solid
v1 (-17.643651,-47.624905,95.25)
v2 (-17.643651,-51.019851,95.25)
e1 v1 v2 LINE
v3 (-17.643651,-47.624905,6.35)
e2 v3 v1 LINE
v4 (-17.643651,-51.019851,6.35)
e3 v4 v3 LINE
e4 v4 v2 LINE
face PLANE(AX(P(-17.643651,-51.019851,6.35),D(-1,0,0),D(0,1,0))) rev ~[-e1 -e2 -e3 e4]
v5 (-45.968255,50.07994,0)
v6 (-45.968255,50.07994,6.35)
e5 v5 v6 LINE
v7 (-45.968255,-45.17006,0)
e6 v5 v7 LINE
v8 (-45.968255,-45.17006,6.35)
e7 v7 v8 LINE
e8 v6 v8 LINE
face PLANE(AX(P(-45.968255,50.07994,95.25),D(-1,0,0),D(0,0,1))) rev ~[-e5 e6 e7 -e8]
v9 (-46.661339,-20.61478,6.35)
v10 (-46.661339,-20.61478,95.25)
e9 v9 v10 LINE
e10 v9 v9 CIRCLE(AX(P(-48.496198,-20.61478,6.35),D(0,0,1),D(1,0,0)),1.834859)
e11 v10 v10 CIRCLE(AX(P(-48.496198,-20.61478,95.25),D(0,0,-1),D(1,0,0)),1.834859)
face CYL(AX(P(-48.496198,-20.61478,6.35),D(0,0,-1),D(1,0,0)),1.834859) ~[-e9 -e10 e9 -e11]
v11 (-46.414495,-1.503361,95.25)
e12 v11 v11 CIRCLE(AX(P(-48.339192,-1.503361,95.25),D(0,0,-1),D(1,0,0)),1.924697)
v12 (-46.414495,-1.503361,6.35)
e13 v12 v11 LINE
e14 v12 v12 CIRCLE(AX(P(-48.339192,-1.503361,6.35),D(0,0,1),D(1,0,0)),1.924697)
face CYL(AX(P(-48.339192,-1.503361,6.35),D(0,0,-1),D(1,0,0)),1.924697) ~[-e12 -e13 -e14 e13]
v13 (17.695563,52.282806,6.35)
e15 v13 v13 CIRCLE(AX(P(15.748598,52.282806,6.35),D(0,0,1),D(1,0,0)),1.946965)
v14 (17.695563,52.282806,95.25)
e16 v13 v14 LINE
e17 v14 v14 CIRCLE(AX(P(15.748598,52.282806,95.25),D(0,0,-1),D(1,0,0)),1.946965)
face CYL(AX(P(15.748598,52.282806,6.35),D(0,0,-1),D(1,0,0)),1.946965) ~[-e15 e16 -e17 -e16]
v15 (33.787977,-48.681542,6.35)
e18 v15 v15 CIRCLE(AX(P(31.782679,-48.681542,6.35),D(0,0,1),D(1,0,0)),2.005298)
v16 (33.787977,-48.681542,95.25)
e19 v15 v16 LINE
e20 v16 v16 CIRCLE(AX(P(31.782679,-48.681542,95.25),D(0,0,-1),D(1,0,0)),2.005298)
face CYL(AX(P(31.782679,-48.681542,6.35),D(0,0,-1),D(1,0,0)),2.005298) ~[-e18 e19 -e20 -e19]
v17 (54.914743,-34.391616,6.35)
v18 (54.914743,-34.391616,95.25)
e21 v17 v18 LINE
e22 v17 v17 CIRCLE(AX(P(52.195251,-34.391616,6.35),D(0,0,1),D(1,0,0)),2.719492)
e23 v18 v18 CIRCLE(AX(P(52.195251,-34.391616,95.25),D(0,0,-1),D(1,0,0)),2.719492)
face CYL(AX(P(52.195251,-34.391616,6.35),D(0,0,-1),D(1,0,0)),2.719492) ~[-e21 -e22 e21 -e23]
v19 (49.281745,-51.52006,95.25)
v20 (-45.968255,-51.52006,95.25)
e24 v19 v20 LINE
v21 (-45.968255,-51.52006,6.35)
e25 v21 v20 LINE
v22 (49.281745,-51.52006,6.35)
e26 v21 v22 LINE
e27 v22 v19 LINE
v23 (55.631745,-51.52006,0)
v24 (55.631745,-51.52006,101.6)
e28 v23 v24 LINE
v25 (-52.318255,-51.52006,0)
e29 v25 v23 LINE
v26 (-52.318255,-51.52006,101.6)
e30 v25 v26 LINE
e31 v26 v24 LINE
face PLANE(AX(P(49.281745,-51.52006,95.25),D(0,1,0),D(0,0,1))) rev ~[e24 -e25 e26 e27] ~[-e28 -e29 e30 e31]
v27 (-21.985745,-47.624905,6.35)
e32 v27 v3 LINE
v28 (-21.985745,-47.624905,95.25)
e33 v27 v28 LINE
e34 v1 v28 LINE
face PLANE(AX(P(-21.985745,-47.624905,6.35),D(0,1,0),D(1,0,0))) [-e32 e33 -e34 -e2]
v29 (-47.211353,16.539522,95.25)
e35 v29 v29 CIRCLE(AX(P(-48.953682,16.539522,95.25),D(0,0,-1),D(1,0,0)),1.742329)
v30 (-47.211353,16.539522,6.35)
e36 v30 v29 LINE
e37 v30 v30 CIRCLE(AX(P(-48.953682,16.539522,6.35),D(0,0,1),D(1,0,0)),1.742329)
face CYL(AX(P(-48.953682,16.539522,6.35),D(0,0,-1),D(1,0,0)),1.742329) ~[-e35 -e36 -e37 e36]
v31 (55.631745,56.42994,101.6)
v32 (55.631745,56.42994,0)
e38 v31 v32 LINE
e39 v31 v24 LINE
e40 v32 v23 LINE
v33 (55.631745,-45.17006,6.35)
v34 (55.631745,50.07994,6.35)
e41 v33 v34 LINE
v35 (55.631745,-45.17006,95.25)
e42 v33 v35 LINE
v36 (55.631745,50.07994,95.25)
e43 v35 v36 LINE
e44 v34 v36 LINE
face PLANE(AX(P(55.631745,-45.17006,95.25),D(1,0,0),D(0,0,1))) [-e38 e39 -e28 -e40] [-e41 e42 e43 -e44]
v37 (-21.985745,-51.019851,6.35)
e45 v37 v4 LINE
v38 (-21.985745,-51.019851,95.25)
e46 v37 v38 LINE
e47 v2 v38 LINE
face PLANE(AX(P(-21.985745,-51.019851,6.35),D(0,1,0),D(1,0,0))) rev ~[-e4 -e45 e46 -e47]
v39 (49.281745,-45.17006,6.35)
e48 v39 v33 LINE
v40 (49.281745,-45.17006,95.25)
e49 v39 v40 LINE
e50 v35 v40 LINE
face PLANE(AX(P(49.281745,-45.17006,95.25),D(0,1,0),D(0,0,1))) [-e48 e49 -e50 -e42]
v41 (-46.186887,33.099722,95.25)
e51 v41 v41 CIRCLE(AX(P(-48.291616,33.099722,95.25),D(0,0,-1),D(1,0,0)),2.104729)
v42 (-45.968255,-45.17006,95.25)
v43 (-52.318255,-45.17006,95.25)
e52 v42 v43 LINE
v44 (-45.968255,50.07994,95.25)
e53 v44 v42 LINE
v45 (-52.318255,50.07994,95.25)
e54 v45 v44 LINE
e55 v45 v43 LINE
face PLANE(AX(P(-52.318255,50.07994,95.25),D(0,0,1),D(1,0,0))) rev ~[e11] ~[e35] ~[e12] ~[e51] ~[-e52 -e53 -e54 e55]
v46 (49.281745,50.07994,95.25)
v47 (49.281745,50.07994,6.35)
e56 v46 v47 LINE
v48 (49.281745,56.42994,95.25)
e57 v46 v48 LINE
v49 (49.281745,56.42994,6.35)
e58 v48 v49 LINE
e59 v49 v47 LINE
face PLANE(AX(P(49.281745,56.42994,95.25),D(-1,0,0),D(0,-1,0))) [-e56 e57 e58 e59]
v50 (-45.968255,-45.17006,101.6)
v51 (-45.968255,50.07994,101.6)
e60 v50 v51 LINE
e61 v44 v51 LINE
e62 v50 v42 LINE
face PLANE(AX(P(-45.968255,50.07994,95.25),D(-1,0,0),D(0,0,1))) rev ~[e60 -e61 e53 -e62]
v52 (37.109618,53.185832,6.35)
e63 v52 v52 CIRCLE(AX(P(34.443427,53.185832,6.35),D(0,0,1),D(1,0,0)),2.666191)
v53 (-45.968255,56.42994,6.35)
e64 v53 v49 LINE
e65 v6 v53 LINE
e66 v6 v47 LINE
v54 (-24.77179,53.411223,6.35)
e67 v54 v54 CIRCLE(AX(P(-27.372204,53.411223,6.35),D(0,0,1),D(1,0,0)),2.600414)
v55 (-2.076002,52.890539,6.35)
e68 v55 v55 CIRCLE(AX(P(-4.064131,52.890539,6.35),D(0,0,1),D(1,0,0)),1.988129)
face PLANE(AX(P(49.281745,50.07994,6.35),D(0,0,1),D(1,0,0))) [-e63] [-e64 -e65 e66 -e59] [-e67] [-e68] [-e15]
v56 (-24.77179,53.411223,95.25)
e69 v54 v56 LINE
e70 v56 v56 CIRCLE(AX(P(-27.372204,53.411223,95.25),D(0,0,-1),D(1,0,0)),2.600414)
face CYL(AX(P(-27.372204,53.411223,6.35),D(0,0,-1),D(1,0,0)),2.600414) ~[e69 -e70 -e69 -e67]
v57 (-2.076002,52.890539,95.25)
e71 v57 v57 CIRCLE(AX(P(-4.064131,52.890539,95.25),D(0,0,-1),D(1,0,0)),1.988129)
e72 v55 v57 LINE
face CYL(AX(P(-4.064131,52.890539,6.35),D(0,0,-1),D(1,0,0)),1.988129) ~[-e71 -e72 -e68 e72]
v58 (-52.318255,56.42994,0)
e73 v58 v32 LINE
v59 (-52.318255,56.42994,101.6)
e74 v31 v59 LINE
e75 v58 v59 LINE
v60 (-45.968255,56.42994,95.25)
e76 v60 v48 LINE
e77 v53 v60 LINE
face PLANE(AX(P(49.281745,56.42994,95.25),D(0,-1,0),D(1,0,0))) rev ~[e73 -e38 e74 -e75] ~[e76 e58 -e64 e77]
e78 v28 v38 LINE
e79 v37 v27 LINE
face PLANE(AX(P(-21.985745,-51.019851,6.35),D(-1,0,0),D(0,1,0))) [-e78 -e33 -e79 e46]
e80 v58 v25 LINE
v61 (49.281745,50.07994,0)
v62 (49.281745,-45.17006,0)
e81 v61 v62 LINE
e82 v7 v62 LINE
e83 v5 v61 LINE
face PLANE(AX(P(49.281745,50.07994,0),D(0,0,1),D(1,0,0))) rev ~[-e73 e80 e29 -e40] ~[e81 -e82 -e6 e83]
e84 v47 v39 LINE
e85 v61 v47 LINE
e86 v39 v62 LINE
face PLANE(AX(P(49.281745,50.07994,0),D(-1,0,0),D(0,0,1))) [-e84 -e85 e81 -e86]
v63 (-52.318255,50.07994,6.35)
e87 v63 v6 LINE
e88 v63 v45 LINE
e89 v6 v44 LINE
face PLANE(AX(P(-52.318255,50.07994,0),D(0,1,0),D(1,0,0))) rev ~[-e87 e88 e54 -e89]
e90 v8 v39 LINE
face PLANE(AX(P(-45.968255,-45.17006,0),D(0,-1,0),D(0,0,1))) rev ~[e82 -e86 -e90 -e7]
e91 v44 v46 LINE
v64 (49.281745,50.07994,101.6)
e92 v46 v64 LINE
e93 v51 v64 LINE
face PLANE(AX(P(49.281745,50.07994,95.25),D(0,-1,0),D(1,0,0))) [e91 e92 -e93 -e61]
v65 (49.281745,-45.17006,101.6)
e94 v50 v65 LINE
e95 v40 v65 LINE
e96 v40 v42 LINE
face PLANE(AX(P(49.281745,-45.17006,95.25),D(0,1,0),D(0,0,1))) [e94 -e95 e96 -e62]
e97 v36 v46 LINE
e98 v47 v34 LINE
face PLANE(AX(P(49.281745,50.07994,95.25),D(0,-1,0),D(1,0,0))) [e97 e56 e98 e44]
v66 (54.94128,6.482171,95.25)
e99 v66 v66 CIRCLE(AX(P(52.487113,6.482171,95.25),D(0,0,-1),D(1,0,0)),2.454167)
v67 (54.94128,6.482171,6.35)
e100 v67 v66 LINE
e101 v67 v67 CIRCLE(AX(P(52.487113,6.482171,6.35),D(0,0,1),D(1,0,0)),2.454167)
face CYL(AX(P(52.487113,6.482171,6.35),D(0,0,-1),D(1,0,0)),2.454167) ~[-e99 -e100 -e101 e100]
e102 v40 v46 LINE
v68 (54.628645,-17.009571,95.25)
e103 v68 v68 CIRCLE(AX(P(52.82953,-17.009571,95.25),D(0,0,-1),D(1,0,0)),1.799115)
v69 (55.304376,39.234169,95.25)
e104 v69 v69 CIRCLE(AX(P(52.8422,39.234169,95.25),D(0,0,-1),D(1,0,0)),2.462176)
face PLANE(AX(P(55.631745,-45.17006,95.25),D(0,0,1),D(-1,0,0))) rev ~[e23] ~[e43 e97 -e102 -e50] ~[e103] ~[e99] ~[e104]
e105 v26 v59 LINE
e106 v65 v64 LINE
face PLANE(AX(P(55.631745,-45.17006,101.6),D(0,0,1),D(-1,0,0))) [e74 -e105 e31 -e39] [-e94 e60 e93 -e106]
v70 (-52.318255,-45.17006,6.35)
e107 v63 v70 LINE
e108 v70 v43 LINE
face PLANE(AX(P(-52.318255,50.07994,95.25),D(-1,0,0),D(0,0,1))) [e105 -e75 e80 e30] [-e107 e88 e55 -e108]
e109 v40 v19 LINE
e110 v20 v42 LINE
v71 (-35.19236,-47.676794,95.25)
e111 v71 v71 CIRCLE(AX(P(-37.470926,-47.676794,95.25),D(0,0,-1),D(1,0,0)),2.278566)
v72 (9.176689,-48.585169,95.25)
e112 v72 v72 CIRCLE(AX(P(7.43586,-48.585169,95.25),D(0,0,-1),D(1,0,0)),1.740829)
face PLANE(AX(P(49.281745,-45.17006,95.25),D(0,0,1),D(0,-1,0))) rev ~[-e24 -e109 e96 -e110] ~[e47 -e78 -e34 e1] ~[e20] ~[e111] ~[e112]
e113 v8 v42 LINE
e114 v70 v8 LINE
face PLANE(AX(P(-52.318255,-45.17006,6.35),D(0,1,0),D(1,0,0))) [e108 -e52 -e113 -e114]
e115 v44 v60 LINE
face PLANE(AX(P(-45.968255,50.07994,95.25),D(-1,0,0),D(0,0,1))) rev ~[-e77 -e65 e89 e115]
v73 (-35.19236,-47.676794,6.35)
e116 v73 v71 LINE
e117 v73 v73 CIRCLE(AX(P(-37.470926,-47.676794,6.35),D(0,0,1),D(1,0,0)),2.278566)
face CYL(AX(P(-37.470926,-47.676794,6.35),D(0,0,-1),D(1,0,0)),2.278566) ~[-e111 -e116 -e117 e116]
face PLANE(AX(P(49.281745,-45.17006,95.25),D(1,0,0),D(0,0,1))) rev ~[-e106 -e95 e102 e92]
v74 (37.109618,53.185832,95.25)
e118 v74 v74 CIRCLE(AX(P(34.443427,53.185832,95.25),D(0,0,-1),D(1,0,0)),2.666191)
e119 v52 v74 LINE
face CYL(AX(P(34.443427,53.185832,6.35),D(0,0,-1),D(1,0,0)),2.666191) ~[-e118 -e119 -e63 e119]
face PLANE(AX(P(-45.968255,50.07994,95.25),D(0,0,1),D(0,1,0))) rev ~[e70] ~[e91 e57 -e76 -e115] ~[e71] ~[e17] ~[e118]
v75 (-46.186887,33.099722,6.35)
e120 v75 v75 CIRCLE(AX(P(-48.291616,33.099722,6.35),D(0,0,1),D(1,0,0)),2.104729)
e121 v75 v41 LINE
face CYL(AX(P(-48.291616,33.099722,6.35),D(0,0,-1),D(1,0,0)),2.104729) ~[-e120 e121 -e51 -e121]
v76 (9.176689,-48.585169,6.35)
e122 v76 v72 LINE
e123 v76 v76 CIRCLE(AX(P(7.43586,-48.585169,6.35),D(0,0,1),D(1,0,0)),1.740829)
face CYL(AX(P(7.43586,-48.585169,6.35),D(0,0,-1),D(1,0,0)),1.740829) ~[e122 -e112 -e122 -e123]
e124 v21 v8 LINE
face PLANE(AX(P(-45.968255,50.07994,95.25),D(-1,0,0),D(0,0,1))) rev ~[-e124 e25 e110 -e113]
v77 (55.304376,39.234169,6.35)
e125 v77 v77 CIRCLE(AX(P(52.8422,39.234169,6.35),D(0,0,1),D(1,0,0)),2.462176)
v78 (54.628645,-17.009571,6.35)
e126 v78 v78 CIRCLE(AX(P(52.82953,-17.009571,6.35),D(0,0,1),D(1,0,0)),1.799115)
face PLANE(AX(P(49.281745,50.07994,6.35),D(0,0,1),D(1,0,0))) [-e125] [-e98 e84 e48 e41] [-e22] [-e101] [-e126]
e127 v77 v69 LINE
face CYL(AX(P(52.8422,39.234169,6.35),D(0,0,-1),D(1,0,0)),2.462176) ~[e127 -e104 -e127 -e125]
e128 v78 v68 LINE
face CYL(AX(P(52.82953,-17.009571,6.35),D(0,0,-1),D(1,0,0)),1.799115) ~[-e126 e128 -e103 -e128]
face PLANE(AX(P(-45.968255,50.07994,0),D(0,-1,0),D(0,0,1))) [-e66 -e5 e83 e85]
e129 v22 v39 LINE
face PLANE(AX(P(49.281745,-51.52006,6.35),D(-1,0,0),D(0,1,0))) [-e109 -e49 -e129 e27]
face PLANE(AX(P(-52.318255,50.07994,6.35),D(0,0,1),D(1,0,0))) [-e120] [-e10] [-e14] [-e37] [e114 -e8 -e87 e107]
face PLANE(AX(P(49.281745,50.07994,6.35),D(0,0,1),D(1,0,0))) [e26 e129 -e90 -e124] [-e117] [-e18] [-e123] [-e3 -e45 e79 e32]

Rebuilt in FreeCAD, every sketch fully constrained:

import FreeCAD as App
import Part
import Sketcher

V = App.Vector
Q = App.Units.Quantity

doc = App.newDocument("Part")
body = doc.addObject("PartDesign::Body", "Body")

sketch1 = body.newObject("Sketcher::SketchObject", "Sketch")
sketch1.AttachmentSupport = (doc.getObject("XY_Plane"), [""])
sketch1.MapMode = "FlatFace"
sketch1.addGeometry(Part.LineSegment(V(-52.318255, 56.42994, 0), V(-52.318255, 50.07994, 0)), False)
sketch1.addGeometry(Part.LineSegment(V(-52.318255, 50.07994, 0), V(-45.968255, 50.07994, 0)), False)
sketch1.addGeometry(Part.LineSegment(V(-45.968255, 50.07994, 0), V(-45.968255, 56.42994, 0)), False)
sketch1.addGeometry(Part.LineSegment(V(-45.968255, 56.42994, 0), V(-52.318255, 56.42994, 0)), False)
sketch1.addConstraint(Sketcher.Constraint("Coincident", 0, 2, 1, 1))
sketch1.addConstraint(Sketcher.Constraint("Coincident", 1, 2, 2, 1))
sketch1.addConstraint(Sketcher.Constraint("Coincident", 2, 2, 3, 1))
sketch1.addConstraint(Sketcher.Constraint("Coincident", 3, 2, 0, 1))
sketch1.addConstraint(Sketcher.Constraint("Vertical", 0))
sketch1.addConstraint(Sketcher.Constraint("Horizontal", 1))
sketch1.addConstraint(Sketcher.Constraint("Vertical", 2))
sketch1.addConstraint(Sketcher.Constraint("Horizontal", 3))
sketch1.addConstraint(Sketcher.Constraint("Equal", 3, 0))
sketch1.addConstraint(Sketcher.Constraint("DistanceX", 1, 1, 1, 2, Q("0.25 in")))
sketch1.addConstraint(Sketcher.Constraint("DistanceY", -1, 1, 0, 2, Q("50.07994 mm")))
sketch1.addConstraint(Sketcher.Constraint("DistanceX", 0, 2, -1, 1, Q("52.318255 mm")))
pad1 = body.newObject("PartDesign::Pad", "Pad")
pad1.Profile = sketch1
pad1.Length = Q("4 in")

sketch2 = body.newObject("Sketcher::SketchObject", "Sketch001")
sketch2.AttachmentSupport = (doc.getObject("XZ_Plane"), [""])
sketch2.MapMode = "FlatFace"
sketch2.AttachmentOffset = App.Placement(V(0, 0, -50.07994), App.Rotation())
sketch2.addGeometry(Part.LineSegment(V(-52.318255, 6.35, 0), V(-52.318255, 0, 0)), False)
sketch2.addGeometry(Part.LineSegment(V(-52.318255, 0, 0), V(-45.968255, 0, 0)), False)
sketch2.addGeometry(Part.LineSegment(V(-45.968255, 0, 0), V(-45.968255, 6.35, 0)), False)
sketch2.addGeometry(Part.LineSegment(V(-45.968255, 6.35, 0), V(-52.318255, 6.35, 0)), False)
sketch2.addConstraint(Sketcher.Constraint("Coincident", 0, 2, 1, 1))
sketch2.addConstraint(Sketcher.Constraint("Coincident", 1, 2, 2, 1))
sketch2.addConstraint(Sketcher.Constraint("Coincident", 2, 2, 3, 1))
sketch2.addConstraint(Sketcher.Constraint("Coincident", 3, 2, 0, 1))
sketch2.addConstraint(Sketcher.Constraint("Vertical", 0))
sketch2.addConstraint(Sketcher.Constraint("Horizontal", 1))
sketch2.addConstraint(Sketcher.Constraint("Vertical", 2))
sketch2.addConstraint(Sketcher.Constraint("Horizontal", 3))
sketch2.addConstraint(Sketcher.Constraint("PointOnObject", 0, 2, -1))
sketch2.addConstraint(Sketcher.Constraint("Equal", 3, 0))
sketch2.addConstraint(Sketcher.Constraint("DistanceX", 1, 1, 1, 2, Q("0.25 in")))
sketch2.addConstraint(Sketcher.Constraint("DistanceX", 0, 2, -1, 1, Q("52.318255 mm")))
pad2 = body.newObject("PartDesign::Pad", "Pad001")
pad2.Profile = sketch2
pad2.Length = Q("4 in")

sketch3 = body.newObject("Sketcher::SketchObject", "Sketch002")
sketch3.AttachmentSupport = (doc.getObject("XY_Plane"), [""])
sketch3.MapMode = "FlatFace"
sketch3.AttachmentOffset = App.Placement(V(0, 0, 0.25 * 25.4), App.Rotation())
sketch3.addGeometry(Part.LineSegment(V(-52.318255, -45.17006, 0), V(-52.318255, -51.52006, 0)), False)
sketch3.addGeometry(Part.LineSegment(V(-52.318255, -51.52006, 0), V(-45.968255, -51.52006, 0)), False)
sketch3.addGeometry(Part.LineSegment(V(-45.968255, -51.52006, 0), V(-45.968255, -45.17006, 0)), False)
sketch3.addGeometry(Part.LineSegment(V(-45.968255, -45.17006, 0), V(-52.318255, -45.17006, 0)), False)
sketch3.addConstraint(Sketcher.Constraint("Coincident", 0, 2, 1, 1))
sketch3.addConstraint(Sketcher.Constraint("Coincident", 1, 2, 2, 1))
sketch3.addConstraint(Sketcher.Constraint("Coincident", 2, 2, 3, 1))
sketch3.addConstraint(Sketcher.Constraint("Coincident", 3, 2, 0, 1))
sketch3.addConstraint(Sketcher.Constraint("Vertical", 0))
sketch3.addConstraint(Sketcher.Constraint("Horizontal", 1))
sketch3.addConstraint(Sketcher.Constraint("Vertical", 2))
sketch3.addConstraint(Sketcher.Constraint("Horizontal", 3))
sketch3.addConstraint(Sketcher.Constraint("Equal", 3, 0))
sketch3.addConstraint(Sketcher.Constraint("DistanceX", 1, 1, 1, 2, Q("0.25 in")))
sketch3.addConstraint(Sketcher.Constraint("DistanceY", 0, 2, -1, 1, Q("51.52006 mm")))
sketch3.addConstraint(Sketcher.Constraint("DistanceX", 0, 2, -1, 1, Q("52.318255 mm")))
pad3 = body.newObject("PartDesign::Pad", "Pad002")
pad3.Profile = sketch3
pad3.Length = Q("3.75 in")

sketch4 = body.newObject("Sketcher::SketchObject", "Sketch003")
sketch4.AttachmentSupport = (doc.getObject("XZ_Plane"), [""])
sketch4.MapMode = "FlatFace"
sketch4.AttachmentOffset = App.Placement(V(0, 0, -50.07994), App.Rotation())
sketch4.addGeometry(Part.LineSegment(V(-52.318255, 101.6, 0), V(-52.318255, 95.25, 0)), False)
sketch4.addGeometry(Part.LineSegment(V(-52.318255, 95.25, 0), V(-45.968255, 95.25, 0)), False)
sketch4.addGeometry(Part.LineSegment(V(-45.968255, 95.25, 0), V(-45.968255, 101.6, 0)), False)
sketch4.addGeometry(Part.LineSegment(V(-45.968255, 101.6, 0), V(-52.318255, 101.6, 0)), False)
sketch4.addConstraint(Sketcher.Constraint("Coincident", 0, 2, 1, 1))
sketch4.addConstraint(Sketcher.Constraint("Coincident", 1, 2, 2, 1))
sketch4.addConstraint(Sketcher.Constraint("Coincident", 2, 2, 3, 1))
sketch4.addConstraint(Sketcher.Constraint("Coincident", 3, 2, 0, 1))
sketch4.addConstraint(Sketcher.Constraint("Vertical", 0))
sketch4.addConstraint(Sketcher.Constraint("Horizontal", 1))
sketch4.addConstraint(Sketcher.Constraint("Vertical", 2))
sketch4.addConstraint(Sketcher.Constraint("Horizontal", 3))
sketch4.addConstraint(Sketcher.Constraint("Equal", 3, 0))
sketch4.addConstraint(Sketcher.Constraint("DistanceY", -1, 1, 2, 2, Q("4 in")))
sketch4.addConstraint(Sketcher.Constraint("DistanceX", 1, 1, 1, 2, Q("0.25 in")))
sketch4.addConstraint(Sketcher.Constraint("DistanceX", 0, 2, -1, 1, Q("52.318255 mm")))
pad4 = body.newObject("PartDesign::Pad", "Pad003")
pad4.Profile = sketch4
pad4.Length = Q("3.93 in")

sketch5 = body.newObject("Sketcher::SketchObject", "Sketch004")
sketch5.AttachmentSupport = (doc.getObject("YZ_Plane"), [""])
sketch5.MapMode = "FlatFace"
sketch5.AttachmentOffset = App.Placement(V(0, 0, -45.968255), App.Rotation())
sketch5.addGeometry(Part.LineSegment(V(50.07994, 6.35, 0), V(50.07994, 0, 0)), False)
sketch5.addGeometry(Part.LineSegment(V(50.07994, 0, 0), V(56.42994, 0, 0)), False)
sketch5.addGeometry(Part.LineSegment(V(56.42994, 0, 0), V(56.42994, 6.35, 0)), False)
sketch5.addGeometry(Part.LineSegment(V(56.42994, 6.35, 0), V(50.07994, 6.35, 0)), False)
sketch5.addConstraint(Sketcher.Constraint("Coincident", 0, 2, 1, 1))
sketch5.addConstraint(Sketcher.Constraint("Coincident", 1, 2, 2, 1))
sketch5.addConstraint(Sketcher.Constraint("Coincident", 2, 2, 3, 1))
sketch5.addConstraint(Sketcher.Constraint("Coincident", 3, 2, 0, 1))
sketch5.addConstraint(Sketcher.Constraint("Vertical", 0))
sketch5.addConstraint(Sketcher.Constraint("Horizontal", 1))
sketch5.addConstraint(Sketcher.Constraint("Vertical", 2))
sketch5.addConstraint(Sketcher.Constraint("Horizontal", 3))
sketch5.addConstraint(Sketcher.Constraint("PointOnObject", 0, 2, -1))
sketch5.addConstraint(Sketcher.Constraint("Equal", 3, 0))
sketch5.addConstraint(Sketcher.Constraint("DistanceX", 1, 1, 1, 2, Q("0.25 in")))
sketch5.addConstraint(Sketcher.Constraint("DistanceX", -1, 1, 0, 2, Q("50.07994 mm")))
pad5 = body.newObject("PartDesign::Pad", "Pad004")
pad5.Profile = sketch5
pad5.Length = Q("4 in")

sketch6 = body.newObject("Sketcher::SketchObject", "Sketch005")
sketch6.AttachmentSupport = (doc.getObject("YZ_Plane"), [""])
sketch6.MapMode = "FlatFace"
sketch6.AttachmentOffset = App.Placement(V(0, 0, -45.968255), App.Rotation())
sketch6.addGeometry(Part.LineSegment(V(-51.52006, 6.35, 0), V(-51.52006, 0, 0)), False)
sketch6.addGeometry(Part.LineSegment(V(-51.52006, 0, 0), V(-45.17006, 0, 0)), False)
sketch6.addGeometry(Part.LineSegment(V(-45.17006, 0, 0), V(-45.17006, 6.35, 0)), False)
sketch6.addGeometry(Part.LineSegment(V(-45.17006, 6.35, 0), V(-51.52006, 6.35, 0)), False)
sketch6.addConstraint(Sketcher.Constraint("Coincident", 0, 2, 1, 1))
sketch6.addConstraint(Sketcher.Constraint("Coincident", 1, 2, 2, 1))
sketch6.addConstraint(Sketcher.Constraint("Coincident", 2, 2, 3, 1))
sketch6.addConstraint(Sketcher.Constraint("Coincident", 3, 2, 0, 1))
sketch6.addConstraint(Sketcher.Constraint("Vertical", 0))
sketch6.addConstraint(Sketcher.Constraint("Horizontal", 1))
sketch6.addConstraint(Sketcher.Constraint("Vertical", 2))
sketch6.addConstraint(Sketcher.Constraint("Horizontal", 3))
sketch6.addConstraint(Sketcher.Constraint("PointOnObject", 0, 2, -1))
sketch6.addConstraint(Sketcher.Constraint("Equal", 3, 0))
sketch6.addConstraint(Sketcher.Constraint("DistanceX", 1, 1, 1, 2, Q("0.25 in")))
sketch6.addConstraint(Sketcher.Constraint("DistanceX", 0, 2, -1, 1, Q("51.52006 mm")))
pad6 = body.newObject("PartDesign::Pad", "Pad005")
pad6.Profile = sketch6
pad6.Length = Q("4 in")

sketch7 = body.newObject("Sketcher::SketchObject", "Sketch006")
sketch7.AttachmentSupport = (doc.getObject("XZ_Plane"), [""])
sketch7.MapMode = "FlatFace"
sketch7.AttachmentOffset = App.Placement(V(0, 0, -50.07994), App.Rotation())
sketch7.addGeometry(Part.LineSegment(V(49.281745, 6.35, 0), V(49.281745, 0, 0)), False)
sketch7.addGeometry(Part.LineSegment(V(49.281745, 0, 0), V(55.631745, 0, 0)), False)
sketch7.addGeometry(Part.LineSegment(V(55.631745, 0, 0), V(55.631745, 6.35, 0)), False)
sketch7.addGeometry(Part.LineSegment(V(55.631745, 6.35, 0), V(49.281745, 6.35, 0)), False)
sketch7.addConstraint(Sketcher.Constraint("Coincident", 0, 2, 1, 1))
sketch7.addConstraint(Sketcher.Constraint("Coincident", 1, 2, 2, 1))
sketch7.addConstraint(Sketcher.Constraint("Coincident", 2, 2, 3, 1))
sketch7.addConstraint(Sketcher.Constraint("Coincident", 3, 2, 0, 1))
sketch7.addConstraint(Sketcher.Constraint("Vertical", 0))
sketch7.addConstraint(Sketcher.Constraint("Horizontal", 1))
sketch7.addConstraint(Sketcher.Constraint("Vertical", 2))
sketch7.addConstraint(Sketcher.Constraint("Horizontal", 3))
sketch7.addConstraint(Sketcher.Constraint("PointOnObject", 0, 2, -1))
sketch7.addConstraint(Sketcher.Constraint("Equal", 3, 0))
sketch7.addConstraint(Sketcher.Constraint("DistanceX", 1, 1, 1, 2, Q("0.25 in")))
sketch7.addConstraint(Sketcher.Constraint("DistanceX", -1, 1, 0, 2, Q("49.281745 mm")))
pad7 = body.newObject("PartDesign::Pad", "Pad006")
pad7.Profile = sketch7
pad7.Length = Q("3.84 in")

sketch8 = body.newObject("Sketcher::SketchObject", "Sketch007")
sketch8.AttachmentSupport = (doc.getObject("XY_Plane"), [""])
sketch8.MapMode = "FlatFace"
sketch8.AttachmentOffset = App.Placement(V(0, 0, 0.25 * 25.4), App.Rotation())
sketch8.addGeometry(Part.LineSegment(V(49.281745, -45.17006, 0), V(49.281745, -51.52006, 0)), False)
sketch8.addGeometry(Part.LineSegment(V(49.281745, -51.52006, 0), V(55.631745, -51.52006, 0)), False)
sketch8.addGeometry(Part.LineSegment(V(55.631745, -51.52006, 0), V(55.631745, -45.17006, 0)), False)
sketch8.addGeometry(Part.LineSegment(V(55.631745, -45.17006, 0), V(49.281745, -45.17006, 0)), False)
sketch8.addConstraint(Sketcher.Constraint("Coincident", 0, 2, 1, 1))
sketch8.addConstraint(Sketcher.Constraint("Coincident", 1, 2, 2, 1))
sketch8.addConstraint(Sketcher.Constraint("Coincident", 2, 2, 3, 1))
sketch8.addConstraint(Sketcher.Constraint("Coincident", 3, 2, 0, 1))
sketch8.addConstraint(Sketcher.Constraint("Vertical", 0))
sketch8.addConstraint(Sketcher.Constraint("Horizontal", 1))
sketch8.addConstraint(Sketcher.Constraint("Vertical", 2))
sketch8.addConstraint(Sketcher.Constraint("Horizontal", 3))
sketch8.addConstraint(Sketcher.Constraint("Equal", 3, 0))
sketch8.addConstraint(Sketcher.Constraint("DistanceX", 1, 1, 1, 2, Q("0.25 in")))
sketch8.addConstraint(Sketcher.Constraint("DistanceY", 0, 2, -1, 1, Q("51.52006 mm")))
sketch8.addConstraint(Sketcher.Constraint("DistanceX", -1, 1, 0, 2, Q("49.281745 mm")))
pad8 = body.newObject("PartDesign::Pad", "Pad007")
pad8.Profile = sketch8
pad8.Length = Q("3.75 in")

sketch9 = body.newObject("Sketcher::SketchObject", "Sketch008")
sketch9.AttachmentSupport = (doc.getObject("YZ_Plane"), [""])
sketch9.MapMode = "FlatFace"
sketch9.AttachmentOffset = App.Placement(V(0, 0, 49.281745), App.Rotation())
sketch9.addGeometry(Part.LineSegment(V(-45.17006, 101.6, 0), V(-45.17006, 95.25, 0)), False)
sketch9.addGeometry(Part.LineSegment(V(-45.17006, 95.25, 0), V(-51.52006, 95.25, 0)), False)
sketch9.addGeometry(Part.LineSegment(V(-51.52006, 95.25, 0), V(-51.52006, 101.6, 0)), False)
sketch9.addGeometry(Part.LineSegment(V(-51.52006, 101.6, 0), V(-45.17006, 101.6, 0)), False)
sketch9.addConstraint(Sketcher.Constraint("Coincident", 0, 2, 1, 1))
sketch9.addConstraint(Sketcher.Constraint("Coincident", 1, 2, 2, 1))
sketch9.addConstraint(Sketcher.Constraint("Coincident", 2, 2, 3, 1))
sketch9.addConstraint(Sketcher.Constraint("Coincident", 3, 2, 0, 1))
sketch9.addConstraint(Sketcher.Constraint("Vertical", 0))
sketch9.addConstraint(Sketcher.Constraint("Horizontal", 1))
sketch9.addConstraint(Sketcher.Constraint("Vertical", 2))
sketch9.addConstraint(Sketcher.Constraint("Horizontal", 3))
sketch9.addConstraint(Sketcher.Constraint("Equal", 3, 0))
sketch9.addConstraint(Sketcher.Constraint("DistanceY", -1, 1, 2, 2, Q("4 in")))
sketch9.addConstraint(Sketcher.Constraint("DistanceX", 1, 2, 1, 1, Q("0.25 in")))
sketch9.addConstraint(Sketcher.Constraint("DistanceX", 0, 2, -1, 1, Q("45.17006 mm")))
pad9 = body.newObject("PartDesign::Pad", "Pad008")
pad9.Profile = sketch9
pad9.Length = Q("3.8 in")
pad9.Reversed = True

sketch10 = body.newObject("Sketcher::SketchObject", "Sketch009")
sketch10.AttachmentSupport = (doc.getObject("YZ_Plane"), [""])
sketch10.MapMode = "FlatFace"
sketch10.AttachmentOffset = App.Placement(V(0, 0, -45.968255), App.Rotation())
sketch10.addGeometry(Part.LineSegment(V(50.07994, 101.6, 0), V(50.07994, 95.25, 0)), False)
sketch10.addGeometry(Part.LineSegment(V(50.07994, 95.25, 0), V(56.42994, 95.25, 0)), False)
sketch10.addGeometry(Part.LineSegment(V(56.42994, 95.25, 0), V(56.42994, 101.6, 0)), False)
sketch10.addGeometry(Part.LineSegment(V(56.42994, 101.6, 0), V(50.07994, 101.6, 0)), False)
sketch10.addConstraint(Sketcher.Constraint("Coincident", 0, 2, 1, 1))
sketch10.addConstraint(Sketcher.Constraint("Coincident", 1, 2, 2, 1))
sketch10.addConstraint(Sketcher.Constraint("Coincident", 2, 2, 3, 1))
sketch10.addConstraint(Sketcher.Constraint("Coincident", 3, 2, 0, 1))
sketch10.addConstraint(Sketcher.Constraint("Vertical", 0))
sketch10.addConstraint(Sketcher.Constraint("Horizontal", 1))
sketch10.addConstraint(Sketcher.Constraint("Vertical", 2))
sketch10.addConstraint(Sketcher.Constraint("Horizontal", 3))
sketch10.addConstraint(Sketcher.Constraint("Equal", 3, 0))
sketch10.addConstraint(Sketcher.Constraint("DistanceY", -1, 1, 2, 2, Q("4 in")))
sketch10.addConstraint(Sketcher.Constraint("DistanceX", 1, 1, 1, 2, Q("0.25 in")))
sketch10.addConstraint(Sketcher.Constraint("DistanceX", -1, 1, 0, 2, Q("50.07994 mm")))
pad10 = body.newObject("PartDesign::Pad", "Pad009")
pad10.Profile = sketch10
pad10.Length = Q("4 in")

sketch11 = body.newObject("Sketcher::SketchObject", "Sketch010")
sketch11.AttachmentSupport = (doc.getObject("XY_Plane"), [""])
sketch11.MapMode = "FlatFace"
sketch11.AttachmentOffset = App.Placement(V(0, 0, 3.75 * 25.4), App.Rotation())
sketch11.addGeometry(Part.LineSegment(V(49.281745, 50.07994, 0), V(49.281745, 56.42994, 0)), False)
sketch11.addGeometry(Part.LineSegment(V(49.281745, 56.42994, 0), V(55.631745, 56.42994, 0)), False)
sketch11.addGeometry(Part.LineSegment(V(55.631745, 56.42994, 0), V(55.631745, 50.07994, 0)), False)
sketch11.addGeometry(Part.LineSegment(V(55.631745, 50.07994, 0), V(49.281745, 50.07994, 0)), False)
sketch11.addConstraint(Sketcher.Constraint("Coincident", 0, 2, 1, 1))
sketch11.addConstraint(Sketcher.Constraint("Coincident", 1, 2, 2, 1))
sketch11.addConstraint(Sketcher.Constraint("Coincident", 2, 2, 3, 1))
sketch11.addConstraint(Sketcher.Constraint("Coincident", 3, 2, 0, 1))
sketch11.addConstraint(Sketcher.Constraint("Vertical", 0))
sketch11.addConstraint(Sketcher.Constraint("Horizontal", 1))
sketch11.addConstraint(Sketcher.Constraint("Vertical", 2))
sketch11.addConstraint(Sketcher.Constraint("Horizontal", 3))
sketch11.addConstraint(Sketcher.Constraint("Equal", 3, 0))
sketch11.addConstraint(Sketcher.Constraint("DistanceX", 1, 1, 1, 2, Q("0.25 in")))
sketch11.addConstraint(Sketcher.Constraint("DistanceY", -1, 1, 0, 2, Q("56.42994 mm")))
sketch11.addConstraint(Sketcher.Constraint("DistanceX", -1, 1, 0, 2, Q("49.281745 mm")))
pad11 = body.newObject("PartDesign::Pad", "Pad010")
pad11.Profile = sketch11
pad11.Length = Q("3.63 in")
pad11.Reversed = True

sketch12 = body.newObject("Sketcher::SketchObject", "Sketch011")
sketch12.AttachmentSupport = (doc.getObject("XZ_Plane"), [""])
sketch12.MapMode = "FlatFace"
sketch12.AttachmentOffset = App.Placement(V(0, 0, 45.17006), App.Rotation())
sketch12.addGeometry(Part.LineSegment(V(55.631745, 101.6, 0), V(55.631745, 95.25, 0)), False)
sketch12.addGeometry(Part.LineSegment(V(55.631745, 95.25, 0), V(49.281745, 95.25, 0)), False)
sketch12.addGeometry(Part.LineSegment(V(49.281745, 95.25, 0), V(49.281745, 101.6, 0)), False)
sketch12.addGeometry(Part.LineSegment(V(49.281745, 101.6, 0), V(55.631745, 101.6, 0)), False)
sketch12.addConstraint(Sketcher.Constraint("Coincident", 0, 2, 1, 1))
sketch12.addConstraint(Sketcher.Constraint("Coincident", 1, 2, 2, 1))
sketch12.addConstraint(Sketcher.Constraint("Coincident", 2, 2, 3, 1))
sketch12.addConstraint(Sketcher.Constraint("Coincident", 3, 2, 0, 1))
sketch12.addConstraint(Sketcher.Constraint("Vertical", 0))
sketch12.addConstraint(Sketcher.Constraint("Horizontal", 1))
sketch12.addConstraint(Sketcher.Constraint("Vertical", 2))
sketch12.addConstraint(Sketcher.Constraint("Horizontal", 3))
sketch12.addConstraint(Sketcher.Constraint("Equal", 3, 0))
sketch12.addConstraint(Sketcher.Constraint("DistanceY", -1, 1, 2, 2, Q("4 in")))
sketch12.addConstraint(Sketcher.Constraint("DistanceX", 1, 2, 1, 1, Q("0.25 in")))
sketch12.addConstraint(Sketcher.Constraint("DistanceX", -1, 1, 0, 2, Q("55.631745 mm")))
pad12 = body.newObject("PartDesign::Pad", "Pad011")
pad12.Profile = sketch12
pad12.Length = Q("3.83 in")
pad12.Reversed = True

sketch13 = body.newObject("Sketcher::SketchObject", "Sketch012")
sketch13.AttachmentSupport = (doc.getObject("XY_Plane"), [""])
sketch13.MapMode = "FlatFace"
sketch13.AttachmentOffset = App.Placement(V(0, 0, 0.25 * 25.4), App.Rotation())
sketch13.addGeometry(Part.Circle(V(52.8422, 39.234169, 0), V(0, 0, 1), 2.462176), False)
sketch13.addConstraint(Sketcher.Constraint("Diameter", 0, Q("4.924352 mm")))
sketch13.addConstraint(Sketcher.Constraint("DistanceX", -1, 1, 0, 3, Q("52.8422 mm")))
sketch13.addConstraint(Sketcher.Constraint("DistanceY", -1, 1, 0, 3, Q("39.234169 mm")))
pad13 = body.newObject("PartDesign::Pad", "Pad012")
pad13.Profile = sketch13
pad13.Length = Q("3.54 in")

sketch14 = body.newObject("Sketcher::SketchObject", "Sketch013")
sketch14.AttachmentSupport = (doc.getObject("XY_Plane"), [""])
sketch14.MapMode = "FlatFace"
sketch14.AttachmentOffset = App.Placement(V(0, 0, 0.25 * 25.4), App.Rotation())
sketch14.addGeometry(Part.Circle(V(52.487113, 6.482171, 0), V(0, 0, 1), 2.454167), False)
sketch14.addConstraint(Sketcher.Constraint("Diameter", 0, Q("4.908334 mm")))
sketch14.addConstraint(Sketcher.Constraint("DistanceY", -1, 1, 0, 3, Q("6.482171 mm")))
sketch14.addConstraint(Sketcher.Constraint("DistanceX", -1, 1, 0, 3, Q("52.487113 mm")))
pad14 = body.newObject("PartDesign::Pad", "Pad013")
pad14.Profile = sketch14
pad14.Length = Q("3.59 in")

sketch15 = body.newObject("Sketcher::SketchObject", "Sketch014")
sketch15.AttachmentSupport = (doc.getObject("XY_Plane"), [""])
sketch15.MapMode = "FlatFace"
sketch15.AttachmentOffset = App.Placement(V(0, 0, 0.25 * 25.4), App.Rotation())
sketch15.addGeometry(Part.Circle(V(52.195251, -34.391616, 0), V(0, 0, 1), 2.719492), False)
sketch15.addConstraint(Sketcher.Constraint("Diameter", 0, Q("5.438984 mm")))
sketch15.addConstraint(Sketcher.Constraint("DistanceX", -1, 1, 0, 3, Q("52.195251 mm")))
sketch15.addConstraint(Sketcher.Constraint("DistanceY", 0, 3, -1, 1, Q("34.391616 mm")))
pad15 = body.newObject("PartDesign::Pad", "Pad014")
pad15.Profile = sketch15
pad15.Length = Q("3.59 in")

sketch16 = body.newObject("Sketcher::SketchObject", "Sketch015")
sketch16.AttachmentSupport = (doc.getObject("XY_Plane"), [""])
sketch16.MapMode = "FlatFace"
sketch16.AttachmentOffset = App.Placement(V(0, 0, 0.25 * 25.4), App.Rotation())
sketch16.addGeometry(Part.Circle(V(52.82953, -17.009571, 0), V(0, 0, 1), 1.799115), False)
sketch16.addConstraint(Sketcher.Constraint("Diameter", 0, Q("3.59823 mm")))
sketch16.addConstraint(Sketcher.Constraint("DistanceX", -1, 1, 0, 3, Q("52.82953 mm")))
sketch16.addConstraint(Sketcher.Constraint("DistanceY", 0, 3, -1, 1, Q("17.009571 mm")))
pad16 = body.newObject("PartDesign::Pad", "Pad015")
pad16.Profile = sketch16
pad16.Length = Q("3.64 in")

sketch17 = body.newObject("Sketcher::SketchObject", "Sketch016")
sketch17.AttachmentSupport = (doc.getObject("XY_Plane"), [""])
sketch17.MapMode = "FlatFace"
sketch17.AttachmentOffset = App.Placement(V(0, 0, 0.25 * 25.4), App.Rotation())
sketch17.addGeometry(Part.Circle(V(-37.470926, -47.676794, 0), V(0, 0, 1), 2.278566), False)
sketch17.addGeometry(Part.LineSegment(V(-21.985745, -47.624905, 0), V(-21.985745, -51.019851, 0)), False)
sketch17.addGeometry(Part.LineSegment(V(-21.985745, -51.019851, 0), V(-17.643651, -51.019851, 0)), False)
sketch17.addGeometry(Part.LineSegment(V(-17.643651, -51.019851, 0), V(-17.643651, -47.624905, 0)), False)
sketch17.addGeometry(Part.LineSegment(V(-17.643651, -47.624905, 0), V(-21.985745, -47.624905, 0)), False)
sketch17.addGeometry(Part.Circle(V(31.782679, -48.681542, 0), V(0, 0, 1), 2.005298), False)
sketch17.addGeometry(Part.Circle(V(7.43586, -48.585169, 0), V(0, 0, 1), 1.740829), False)
sketch17.addConstraint(Sketcher.Constraint("Coincident", 1, 2, 2, 1))
sketch17.addConstraint(Sketcher.Constraint("Coincident", 2, 2, 3, 1))
sketch17.addConstraint(Sketcher.Constraint("Coincident", 3, 2, 4, 1))
sketch17.addConstraint(Sketcher.Constraint("Coincident", 4, 2, 1, 1))
sketch17.addConstraint(Sketcher.Constraint("Vertical", 1))
sketch17.addConstraint(Sketcher.Constraint("Horizontal", 2))
sketch17.addConstraint(Sketcher.Constraint("Vertical", 3))
sketch17.addConstraint(Sketcher.Constraint("Horizontal", 4))
sketch17.addConstraint(Sketcher.Constraint("Diameter", 0, Q("4.557132 mm")))
sketch17.addConstraint(Sketcher.Constraint("Diameter", 5, Q("4.010596 mm")))
sketch17.addConstraint(Sketcher.Constraint("Diameter", 6, Q("3.481658 mm")))
sketch17.addConstraint(Sketcher.Constraint("DistanceY", 5, 3, 3, 2, Q("0.0415999 in")))
sketch17.addConstraint(Sketcher.Constraint("DistanceX", 2, 1, 2, 2, Q("4.342094 mm")))
sketch17.addConstraint(Sketcher.Constraint("DistanceY", 1, 2, 1, 1, Q("3.394946 mm")))
sketch17.addConstraint(Sketcher.Constraint("DistanceX", -1, 1, 5, 3, Q("31.782679 mm")))
sketch17.addConstraint(Sketcher.Constraint("DistanceX", -1, 1, 6, 3, Q("7.43586 mm")))
sketch17.addConstraint(Sketcher.Constraint("DistanceY", 6, 3, -1, 1, Q("48.585169 mm")))
sketch17.addConstraint(Sketcher.Constraint("DistanceY", 1, 2, -1, 1, Q("51.019851 mm")))
sketch17.addConstraint(Sketcher.Constraint("DistanceX", 2, 2, -1, 1, Q("17.643651 mm")))
sketch17.addConstraint(Sketcher.Constraint("DistanceX", 0, 3, 1, 2, Q("15.485181 mm")))
sketch17.addConstraint(Sketcher.Constraint("DistanceY", 0, 3, 3, 2, Q("0.051889 mm")))
pad17 = body.newObject("PartDesign::Pad", "Pad016")
pad17.Profile = sketch17
pad17.Length = Q("3.75 in")

sketch18 = body.newObject("Sketcher::SketchObject", "Sketch017")
sketch18.AttachmentSupport = (doc.getObject("XY_Plane"), [""])
sketch18.MapMode = "FlatFace"
sketch18.AttachmentOffset = App.Placement(V(0, 0, 0.25 * 25.4), App.Rotation())
sketch18.addGeometry(Part.Circle(V(-48.291616, 33.099722, 0), V(0, 0, 1), 2.104729), False)
sketch18.addGeometry(Part.Circle(V(-48.953682, 16.539522, 0), V(0, 0, 1), 1.742329), False)
sketch18.addGeometry(Part.Circle(V(-48.339192, -1.503361, 0), V(0, 0, 1), 1.924697), False)
sketch18.addGeometry(Part.Circle(V(-48.496198, -20.61478, 0), V(0, 0, 1), 1.834859), False)
sketch18.addConstraint(Sketcher.Constraint("Diameter", 1, Q("3.484658 mm")))
sketch18.addConstraint(Sketcher.Constraint("Diameter", 3, Q("3.669718 mm")))
sketch18.addConstraint(Sketcher.Constraint("Diameter", 0, Q("4.209458 mm")))
sketch18.addConstraint(Sketcher.Constraint("Diameter", 2, Q("3.849394 mm")))
sketch18.addConstraint(Sketcher.Constraint("DistanceY", 1, 3, 0, 3, Q("16.5602 mm")))
sketch18.addConstraint(Sketcher.Constraint("DistanceY", 3, 3, 0, 3, Q("53.714502 mm")))
sketch18.addConstraint(Sketcher.Constraint("DistanceX", 2, 3, -1, 1, Q("48.339192 mm")))
sketch18.addConstraint(Sketcher.Constraint("DistanceY", 2, 3, -1, 1, Q("1.503361 mm")))
sketch18.addConstraint(Sketcher.Constraint("DistanceY", 3, 3, -1, 1, Q("20.61478 mm")))
sketch18.addConstraint(Sketcher.Constraint("DistanceX", 1, 3, 2, 3, Q("0.61449 mm")))
sketch18.addConstraint(Sketcher.Constraint("DistanceX", 0, 3, -1, 1, Q("48.291616 mm")))
sketch18.addConstraint(Sketcher.Constraint("DistanceX", 3, 3, -1, 1, Q("48.496198 mm")))
pad18 = body.newObject("PartDesign::Pad", "Pad017")
pad18.Profile = sketch18
pad18.Length = Q("3.75 in")

sketch19 = body.newObject("Sketcher::SketchObject", "Sketch018")
sketch19.AttachmentSupport = (doc.getObject("XY_Plane"), [""])
sketch19.MapMode = "FlatFace"
sketch19.AttachmentOffset = App.Placement(V(0, 0, 0.25 * 25.4), App.Rotation())
sketch19.addGeometry(Part.Circle(V(34.443427, 53.185832, 0), V(0, 0, 1), 2.666191), False)
sketch19.addGeometry(Part.Circle(V(15.748598, 52.282806, 0), V(0, 0, 1), 1.946965), False)
sketch19.addGeometry(Part.Circle(V(-27.372204, 53.411223, 0), V(0, 0, 1), 2.600414), False)
sketch19.addGeometry(Part.Circle(V(-4.064131, 52.890539, 0), V(0, 0, 1), 1.988129), False)
sketch19.addConstraint(Sketcher.Constraint("Diameter", 1, Q("3.89393 mm")))
sketch19.addConstraint(Sketcher.Constraint("Diameter", 3, Q("3.976258 mm")))
sketch19.addConstraint(Sketcher.Constraint("Diameter", 0, Q("5.332382 mm")))
sketch19.addConstraint(Sketcher.Constraint("Diameter", 2, Q("5.200828 mm")))
sketch19.addConstraint(Sketcher.Constraint("DistanceX", 2, 3, 1, 3, Q("43.120802 mm")))
sketch19.addConstraint(Sketcher.Constraint("DistanceY", -1, 1, 0, 3, Q("53.185832 mm")))
sketch19.addConstraint(Sketcher.Constraint("DistanceX", 3, 3, -1, 1, Q("4.064131 mm")))
sketch19.addConstraint(Sketcher.Constraint("DistanceY", -1, 1, 3, 3, Q("52.890539 mm")))
sketch19.addConstraint(Sketcher.Constraint("DistanceX", 1, 3, 0, 3, Q("18.694829 mm")))
sketch19.addConstraint(Sketcher.Constraint("DistanceY", 0, 3, 2, 3, Q("0.225391 mm")))
sketch19.addConstraint(Sketcher.Constraint("DistanceX", 3, 3, 1, 3, Q("19.812729 mm")))
sketch19.addConstraint(Sketcher.Constraint("DistanceY", -1, 1, 1, 3, Q("52.282806 mm")))
pad19 = body.newObject("PartDesign::Pad", "Pad018")
pad19.Profile = sketch19
pad19.Length = Q("3.75 in")

doc.recompute()
